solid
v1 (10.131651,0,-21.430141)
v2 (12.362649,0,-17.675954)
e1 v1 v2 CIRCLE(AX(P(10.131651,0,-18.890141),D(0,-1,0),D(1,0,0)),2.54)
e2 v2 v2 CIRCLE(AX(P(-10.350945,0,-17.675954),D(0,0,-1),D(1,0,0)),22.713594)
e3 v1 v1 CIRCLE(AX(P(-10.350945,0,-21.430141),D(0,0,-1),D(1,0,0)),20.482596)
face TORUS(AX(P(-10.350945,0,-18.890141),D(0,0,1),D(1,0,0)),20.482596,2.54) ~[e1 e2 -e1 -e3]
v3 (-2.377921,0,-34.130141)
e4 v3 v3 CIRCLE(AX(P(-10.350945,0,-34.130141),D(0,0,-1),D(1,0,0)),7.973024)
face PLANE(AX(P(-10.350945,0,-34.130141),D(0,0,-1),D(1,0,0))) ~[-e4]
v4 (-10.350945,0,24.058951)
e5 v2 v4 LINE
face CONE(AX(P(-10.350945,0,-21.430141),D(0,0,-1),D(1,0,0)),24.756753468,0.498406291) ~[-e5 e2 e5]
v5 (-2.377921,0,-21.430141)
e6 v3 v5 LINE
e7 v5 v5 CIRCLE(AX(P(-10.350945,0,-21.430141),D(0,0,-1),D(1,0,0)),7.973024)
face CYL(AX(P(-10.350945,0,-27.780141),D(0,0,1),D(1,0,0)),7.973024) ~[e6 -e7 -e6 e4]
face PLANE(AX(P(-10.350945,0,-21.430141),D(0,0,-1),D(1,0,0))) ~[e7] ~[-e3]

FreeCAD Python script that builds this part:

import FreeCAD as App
import Part
import Sketcher
Q = App.Units.Quantity


def edges_at(feature, points):
    """Names of the edges that pass closest to the given points."""
    edges = feature.Shape.Edges
    near = lambda p: min(range(len(edges)), key=lambda i: edges[i].distToShape(Part.Vertex(*p))[0])
    return sorted({f"Edge{near(p) + 1}" for p in points})


def add_polygon(sketch, points):
    """Adds a closed chain of lines whose ends are joined by coincident constraints."""
    first, n = sketch.GeometryCount, len(points)
    for a, b in zip(points, points[1:] + points[:1]):
        sketch.addGeometry(Part.LineSegment(App.Vector(*a, 0), App.Vector(*b, 0)), False)
    for i in range(n):
        sketch.addConstraint(Sketcher.Constraint("Coincident", first + i, 2, first + (i + 1) % n, 1))

doc = App.newDocument("Part")
body = doc.addObject("PartDesign::Body", "Body")

sketch1 = body.newObject("Sketcher::SketchObject", "Sketch")
sketch1.AttachmentSupport = (doc.getObject("XZ_Plane"), [""])
sketch1.MapMode = "FlatFace"
add_polygon(sketch1, [(-10, -34), (-2, -34), (-2, -21), (14, -21), (-10, 24)])
sketch1.addGeometry(Part.LineSegment(App.Vector(-10, 24, 0), App.Vector(-10, -34, 0)), True)
sketch1.addConstraint([
    Sketcher.Constraint("Horizontal", 0),
    Sketcher.Constraint("Vertical", 1),
    Sketcher.Constraint("Horizontal", 2),
    Sketcher.Constraint("Vertical", 4),
    Sketcher.Constraint("Vertical", 5),
    Sketcher.Constraint("Coincident", 5, 1, 3, 2),
    Sketcher.Constraint("Horizontal", 0, 2, 5, 2),
    Sketcher.Constraint("DistanceY", 1, 1, 1, 2, Q("0.5 in")),
    Sketcher.Constraint("DistanceX", 2, 1, 2, 2, 16.783729),
    Sketcher.Constraint("Distance", 3, 51.78952),
    Sketcher.Constraint("DistanceX", 0, 1, 0, 2, 7.973024),
    Sketcher.Constraint("DistanceX", 0, 2, -1, 1, 2.377921),
    Sketcher.Constraint("DistanceY", 0, 2, -1, 1, 34.130141),
])
revolution = body.newObject("PartDesign::Revolution", "Revolution")
revolution.Profile = sketch1
revolution.ReferenceAxis = (sketch1, ["Axis0"])
revolution.Angle = 360
doc.recompute()

fillet = body.newObject("PartDesign::Fillet", "Fillet")
fillet.Base = (revolution, edges_at(revolution, [(-35.108, 0, -21.43)]))
fillet.Radius = Q("0.1 in")

doc.recompute()
